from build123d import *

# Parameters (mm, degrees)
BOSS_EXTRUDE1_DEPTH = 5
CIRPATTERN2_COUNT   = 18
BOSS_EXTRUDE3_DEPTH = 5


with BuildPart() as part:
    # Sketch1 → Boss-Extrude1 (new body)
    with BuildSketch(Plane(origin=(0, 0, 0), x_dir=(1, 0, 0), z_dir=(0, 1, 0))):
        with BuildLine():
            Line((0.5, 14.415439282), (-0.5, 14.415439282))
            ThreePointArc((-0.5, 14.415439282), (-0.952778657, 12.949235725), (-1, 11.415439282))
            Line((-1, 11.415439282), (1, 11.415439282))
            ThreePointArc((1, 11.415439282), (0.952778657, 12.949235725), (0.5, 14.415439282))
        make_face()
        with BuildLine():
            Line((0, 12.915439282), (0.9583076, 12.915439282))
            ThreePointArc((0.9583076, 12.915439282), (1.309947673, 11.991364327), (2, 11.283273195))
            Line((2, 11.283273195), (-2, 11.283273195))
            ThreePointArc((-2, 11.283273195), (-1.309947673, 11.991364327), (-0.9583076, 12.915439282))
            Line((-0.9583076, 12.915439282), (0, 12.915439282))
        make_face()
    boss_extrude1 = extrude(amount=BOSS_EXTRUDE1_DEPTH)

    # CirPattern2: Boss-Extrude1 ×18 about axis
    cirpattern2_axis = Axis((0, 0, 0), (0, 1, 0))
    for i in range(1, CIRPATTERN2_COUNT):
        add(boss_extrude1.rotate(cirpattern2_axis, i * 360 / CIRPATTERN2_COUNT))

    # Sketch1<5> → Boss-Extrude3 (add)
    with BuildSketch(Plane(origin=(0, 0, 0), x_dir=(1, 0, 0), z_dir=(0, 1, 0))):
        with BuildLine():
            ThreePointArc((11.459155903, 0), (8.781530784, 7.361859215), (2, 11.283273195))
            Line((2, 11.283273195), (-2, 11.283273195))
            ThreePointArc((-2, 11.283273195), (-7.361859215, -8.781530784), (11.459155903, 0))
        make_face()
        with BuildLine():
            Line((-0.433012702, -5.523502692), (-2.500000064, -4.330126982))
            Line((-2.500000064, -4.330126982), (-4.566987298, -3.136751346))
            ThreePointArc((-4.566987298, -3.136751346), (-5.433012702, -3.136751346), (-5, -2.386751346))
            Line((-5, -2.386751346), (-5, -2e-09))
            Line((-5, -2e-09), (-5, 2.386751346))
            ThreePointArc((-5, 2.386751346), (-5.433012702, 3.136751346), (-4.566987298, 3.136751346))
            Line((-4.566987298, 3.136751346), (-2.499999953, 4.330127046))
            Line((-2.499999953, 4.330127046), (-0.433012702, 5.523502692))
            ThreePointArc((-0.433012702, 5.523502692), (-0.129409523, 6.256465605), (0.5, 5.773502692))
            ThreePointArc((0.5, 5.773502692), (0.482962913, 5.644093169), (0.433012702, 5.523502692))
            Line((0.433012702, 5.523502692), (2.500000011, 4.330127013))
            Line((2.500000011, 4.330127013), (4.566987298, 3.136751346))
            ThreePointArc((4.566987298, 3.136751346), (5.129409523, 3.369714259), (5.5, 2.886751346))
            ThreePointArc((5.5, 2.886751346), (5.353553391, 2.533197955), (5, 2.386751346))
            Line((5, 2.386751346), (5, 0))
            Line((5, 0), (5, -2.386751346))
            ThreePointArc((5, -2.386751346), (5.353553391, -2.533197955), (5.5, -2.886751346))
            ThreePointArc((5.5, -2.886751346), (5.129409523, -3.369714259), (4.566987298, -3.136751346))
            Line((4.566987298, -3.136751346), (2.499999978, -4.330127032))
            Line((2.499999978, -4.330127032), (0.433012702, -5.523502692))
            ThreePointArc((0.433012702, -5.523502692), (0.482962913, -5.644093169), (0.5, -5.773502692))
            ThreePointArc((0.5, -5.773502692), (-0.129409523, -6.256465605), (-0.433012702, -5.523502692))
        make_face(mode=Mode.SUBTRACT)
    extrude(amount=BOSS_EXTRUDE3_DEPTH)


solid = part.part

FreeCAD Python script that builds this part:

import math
import FreeCAD as App
import Part
import Sketcher
Q = App.Units.Quantity

doc = App.newDocument("Part")
body = doc.addObject("PartDesign::Body", "Body")

sketch1 = doc.addObject("Sketcher::SketchObject", "Sketch")
body.addObject(sketch1)
sketch1.AttachmentSupport = (doc.XZ_Plane, [""])
sketch1.MapMode = "FlatFace"
sketch1.addGeometry(Part.ArcOfCircle(Part.Circle(App.Vector(-4.696532, -12.007684, 0), App.Vector(0, 0, 1), 5.727236), math.radians(-24.860124), math.radians(-9.119725)), False)
sketch1.addGeometry(Part.LineSegment(App.Vector(0.5, -14.415439, 0), App.Vector(-0.5, -14.415439, 0)), False)
sketch1.addGeometry(Part.ArcOfCircle(Part.Circle(App.Vector(4.696532, -12.007684, 0), App.Vector(0, 0, 1), 5.727236), math.radians(-170.880275), math.radians(-155.139876)), False)
sketch1.addGeometry(Part.ArcOfCircle(Part.Circle(App.Vector(-3.36254, -13.301384, 0), App.Vector(0, 0, 1), 2.435012), math.radians(9.119725), math.radians(55.974509)), False)
sketch1.addGeometry(Part.LineSegment(App.Vector(-2, -11.283273, 0), App.Vector(2, -11.283273, 0)), False)
sketch1.addGeometry(Part.ArcOfCircle(Part.Circle(App.Vector(3.36254, -13.301384, 0), App.Vector(0, 0, 1), 2.435012), math.radians(124.025491), math.radians(170.880275)), False)
sketch1.addConstraint(Sketcher.Constraint("Coincident", 0, 1, 1, 1))
sketch1.addConstraint(Sketcher.Constraint("Coincident", 1, 2, 2, 2))
sketch1.addConstraint(Sketcher.Constraint("Tangent", 2, 1, 3, 1))
sketch1.addConstraint(Sketcher.Constraint("Coincident", 3, 2, 4, 1))
sketch1.addConstraint(Sketcher.Constraint("Coincident", 4, 2, 5, 1))
sketch1.addConstraint(Sketcher.Constraint("Tangent", 5, 2, 0, 2))
sketch1.addConstraint(Sketcher.Constraint("Horizontal", 1))
sketch1.addConstraint(Sketcher.Constraint("Horizontal", 4))
sketch1.addConstraint(Sketcher.Constraint("Equal", 0, 2))
sketch1.addConstraint(Sketcher.Constraint("Equal", 3, 5))
sketch1.addConstraint(Sketcher.Constraint("Symmetric", 0, 3, 2, 3, -2))
sketch1.addConstraint(Sketcher.Constraint("Horizontal", 3, 3, 5, 3))
sketch1.addConstraint(Sketcher.Constraint("DistanceX", 1, 2, 1, 1, 1.0))
sketch1.addConstraint(Sketcher.Constraint("DistanceX", 4, 1, 4, 2, 4.0))
sketch1.addConstraint(Sketcher.Constraint("DistanceY", 1, 2, 2, 1, 1.5))
sketch1.addConstraint(Sketcher.Constraint("Radius", 0, 5.727236))
sketch1.addConstraint(Sketcher.Constraint("Radius", 3, 2.435012))
sketch1.addConstraint(Sketcher.Constraint("DistanceY", 3, 3, 0, 3, 1.2937))
sketch1.addConstraint(Sketcher.Constraint("DistanceY", 0, 1, -1, 1, 14.415439))
pad1 = doc.addObject("PartDesign::Pad", "Pad")
body.addObject(pad1)
pad1.Profile = sketch1
pad1.Length = 5
pad1.Reversed = True
doc.recompute()

polarpattern = doc.addObject("PartDesign::PolarPattern", "PolarPattern")
body.addObject(polarpattern)
polarpattern.Originals = [pad1]
polarpattern.Axis = (doc.Y_Axis, [""])
polarpattern.Angle = 360
polarpattern.Occurrences = 18
body.Tip = polarpattern

sketch2 = doc.addObject("Sketcher::SketchObject", "Sketch001")
body.addObject(sketch2)
sketch2.AttachmentSupport = (doc.XZ_Plane, [""])
sketch2.MapMode = "FlatFace"
sketch2.addGeometry(Part.ArcOfCircle(Part.Circle(App.Vector(0, 0, 0), App.Vector(0, 0, 1), 11.459156), math.radians(-79.948522), math.radians(0)), False)
sketch2.addGeometry(Part.LineSegment(App.Vector(2, -11.283273, 0), App.Vector(-2, -11.283273, 0)), False)
sketch2.addGeometry(Part.ArcOfCircle(Part.Circle(App.Vector(0, 0, 0), App.Vector(0, 0, 1), 11.459156), math.radians(0), math.radians(259.948522)), False)
sketch2.addGeometry(Part.ArcOfCircle(Part.Circle(App.Vector(0, 5.773503, 0), App.Vector(0, 0, 1), 0.5), math.radians(0), math.radians(210)), False)
sketch2.addGeometry(Part.LineSegment(App.Vector(-0.433013, 5.523503, 0), App.Vector(-2.5, 4.330127, 0)), False)
sketch2.addGeometry(Part.LineSegment(App.Vector(-2.5, 4.330127, 0), App.Vector(-4.566987, 3.136751, 0)), False)
sketch2.addGeometry(Part.ArcOfCircle(Part.Circle(App.Vector(-5, 2.886751, 0), App.Vector(0, 0, 1), 0.5), math.radians(30), math.radians(270)), False)
sketch2.addGeometry(Part.LineSegment(App.Vector(-5, 2.386751, 0), App.Vector(-5, -2.386751, 0)), False)
sketch2.addGeometry(Part.ArcOfCircle(Part.Circle(App.Vector(-5, -2.886751, 0), App.Vector(0, 0, 1), 0.5), math.radians(90), math.radians(330)), False)
sketch2.addGeometry(Part.LineSegment(App.Vector(-4.566987, -3.136751, 0), App.Vector(-2.5, -4.330127, 0)), False)
sketch2.addGeometry(Part.LineSegment(App.Vector(-2.5, -4.330127, 0), App.Vector(-0.433013, -5.523503, 0)), False)
sketch2.addGeometry(Part.ArcOfCircle(Part.Circle(App.Vector(0, -5.773503, 0), App.Vector(0, 0, 1), 0.5), math.radians(150), math.radians(360)), False)
sketch2.addGeometry(Part.ArcOfCircle(Part.Circle(App.Vector(0, -5.773503, 0), App.Vector(0, 0, 1), 0.5), math.radians(0), math.radians(30)), False)
sketch2.addGeometry(Part.LineSegment(App.Vector(0.433013, -5.523503, 0), App.Vector(2.5, -4.330127, 0)), False)
sketch2.addGeometry(Part.LineSegment(App.Vector(2.5, -4.330127, 0), App.Vector(4.566987, -3.136751, 0)), False)
sketch2.addGeometry(Part.ArcOfCircle(Part.Circle(App.Vector(5, -2.886751, 0), App.Vector(0, 0, 1), 0.5), math.radians(-150), math.radians(0)), False)
sketch2.addGeometry(Part.ArcOfCircle(Part.Circle(App.Vector(5, -2.886751, 0), App.Vector(0, 0, 1), 0.5), math.radians(0), math.radians(90)), False)
sketch2.addGeometry(Part.LineSegment(App.Vector(5, -2.386751, 0), App.Vector(5, 2.386751, 0)), False)
sketch2.addGeometry(Part.ArcOfCircle(Part.Circle(App.Vector(5, 2.886751, 0), App.Vector(0, 0, 1), 0.5), math.radians(-90), math.radians(0)), False)
sketch2.addGeometry(Part.ArcOfCircle(Part.Circle(App.Vector(5, 2.886751, 0), App.Vector(0, 0, 1), 0.5), math.radians(0), math.radians(150)), False)
sketch2.addGeometry(Part.LineSegment(App.Vector(4.566987, 3.136751, 0), App.Vector(2.5, 4.330127, 0)), False)
sketch2.addGeometry(Part.LineSegment(App.Vector(2.5, 4.330127, 0), App.Vector(0.433013, 5.523503, 0)), False)
sketch2.addGeometry(Part.ArcOfCircle(Part.Circle(App.Vector(0, 5.773503, 0), App.Vector(0, 0, 1), 0.5), math.radians(-30), math.radians(0)), False)
sketch2.addConstraint(Sketcher.Constraint("Coincident", 0, 1, 1, 1))
sketch2.addConstraint(Sketcher.Constraint("Coincident", 1, 2, 2, 2))
sketch2.addConstraint(Sketcher.Constraint("Tangent", 2, 1, 0, 2))
sketch2.addConstraint(Sketcher.Constraint("Coincident", 3, 2, 4, 1))
sketch2.addConstraint(Sketcher.Constraint("Coincident", 4, 2, 5, 1))
sketch2.addConstraint(Sketcher.Constraint("Coincident", 5, 2, 6, 1))
sketch2.addConstraint(Sketcher.Constraint("Coincident", 6, 2, 7, 1))
sketch2.addConstraint(Sketcher.Constraint("Coincident", 7, 2, 8, 1))
sketch2.addConstraint(Sketcher.Constraint("Coincident", 8, 2, 9, 1))
sketch2.addConstraint(Sketcher.Constraint("Coincident", 9, 2, 10, 1))
sketch2.addConstraint(Sketcher.Constraint("Coincident", 10, 2, 11, 1))
sketch2.addConstraint(Sketcher.Constraint("Tangent", 11, 2, 12, 1))
sketch2.addConstraint(Sketcher.Constraint("Coincident", 12, 2, 13, 1))
sketch2.addConstraint(Sketcher.Constraint("Coincident", 13, 2, 14, 1))
sketch2.addConstraint(Sketcher.Constraint("Coincident", 14, 2, 15, 1))
sketch2.addConstraint(Sketcher.Constraint("Tangent", 15, 2, 16, 1))
sketch2.addConstraint(Sketcher.Constraint("Coincident", 16, 2, 17, 1))
sketch2.addConstraint(Sketcher.Constraint("Coincident", 17, 2, 18, 1))
sketch2.addConstraint(Sketcher.Constraint("Tangent", 18, 2, 19, 1))
sketch2.addConstraint(Sketcher.Constraint("Coincident", 19, 2, 20, 1))
sketch2.addConstraint(Sketcher.Constraint("Coincident", 20, 2, 21, 1))
sketch2.addConstraint(Sketcher.Constraint("Coincident", 21, 2, 22, 1))
sketch2.addConstraint(Sketcher.Constraint("Tangent", 22, 2, 3, 1))
sketch2.addConstraint(Sketcher.Constraint("Horizontal", 1))
sketch2.addConstraint(Sketcher.Constraint("Vertical", 7))
sketch2.addConstraint(Sketcher.Constraint("Vertical", 17))
sketch2.addConstraint(Sketcher.Constraint("Coincident", 0, 3, -1, 1))
sketch2.addConstraint(Sketcher.Constraint("Equal", 0, 2))
sketch2.addConstraint(Sketcher.Constraint("Equal", 3, 6))
sketch2.addConstraint(Sketcher.Constraint("Equal", 6, 8))
sketch2.addConstraint(Sketcher.Constraint("Equal", 8, 11))
sketch2.addConstraint(Sketcher.Constraint("Equal", 11, 12))
sketch2.addConstraint(Sketcher.Constraint("Equal", 12, 15))
sketch2.addConstraint(Sketcher.Constraint("Equal", 15, 16))
sketch2.addConstraint(Sketcher.Constraint("Equal", 16, 18))
sketch2.addConstraint(Sketcher.Constraint("Equal", 18, 19))
sketch2.addConstraint(Sketcher.Constraint("Equal", 19, 22))
sketch2.addConstraint(Sketcher.Constraint("Symmetric", 3, 3, 11, 3, -1, 1))
sketch2.addConstraint(Sketcher.Constraint("Symmetric", 6, 3, 15, 3, -1, 1))
sketch2.addConstraint(Sketcher.Constraint("Symmetric", 8, 3, 18, 3, -1, 1))
sketch2.addConstraint(Sketcher.Constraint("Symmetric", 4, 2, 13, 2, -1, 1))
sketch2.addConstraint(Sketcher.Constraint("Symmetric", 9, 2, 20, 2, -1, 1))
sketch2.addConstraint(Sketcher.Constraint("Symmetric", 8, 3, 15, 3, -2))
sketch2.addConstraint(Sketcher.Constraint("Symmetric", 10, 2, 12, 2, -2))
sketch2.addConstraint(Sketcher.Constraint("Symmetric", 9, 2, 13, 2, -2))
sketch2.addConstraint(Sketcher.Constraint("PointOnObject", 2, 1, -1))
sketch2.addConstraint(Sketcher.Constraint("Parallel", 4, 5))
sketch2.addConstraint(Sketcher.Constraint("Parallel", 9, 10))
sketch2.addConstraint(Sketcher.Constraint("Parallel", 5, 13))
sketch2.addConstraint(Sketcher.Constraint("Parallel", 13, 14))
sketch2.addConstraint(Sketcher.Constraint("Parallel", 10, 20))
sketch2.addConstraint(Sketcher.Constraint("Parallel", 20, 21))
sketch2.addConstraint(Sketcher.Constraint("Horizontal", 12, 3, 11, 2))
sketch2.addConstraint(Sketcher.Constraint("Horizontal", 16, 3, 15, 2))
sketch2.addConstraint(Sketcher.Constraint("Horizontal", 19, 3, 18, 2))
sketch2.addConstraint(Sketcher.Constraint("Horizontal", 3, 3, 22, 2))
sketch2.addConstraint(Sketcher.Constraint("Vertical", 8, 3, 6, 2))
sketch2.addConstraint(Sketcher.Constraint("Vertical", 19, 3, 16, 2))
sketch2.addConstraint(Sketcher.Constraint("Equal", 4, 5))
sketch2.addConstraint(Sketcher.Constraint("Radius", 3, 0.5))
sketch2.addConstraint(Sketcher.Constraint("DistanceX", 1, 2, 1, 1, 4.0))
sketch2.addConstraint(Sketcher.Constraint("Angle", 4, Q("-150 deg")))
sketch2.addConstraint(Sketcher.Constraint("DistanceX", 6, 3, -1, 1, 5.0))
sketch2.addConstraint(Sketcher.Constraint("DistanceX", 9, 2, 11, 2, 3.0))
sketch2.addConstraint(Sketcher.Constraint("DistanceY", 3, 2, 22, 3, 0.25))
sketch2.addConstraint(Sketcher.Constraint("Radius", 0, 11.459156))
sketch2.addConstraint(Sketcher.Constraint("DistanceY", 7, 2, 7, 1, 4.773503))
pad2 = doc.addObject("PartDesign::Pad", "Pad001")
body.addObject(pad2)
pad2.Profile = sketch2
pad2.Length = 5
pad2.Reversed = True

doc.recompute()
